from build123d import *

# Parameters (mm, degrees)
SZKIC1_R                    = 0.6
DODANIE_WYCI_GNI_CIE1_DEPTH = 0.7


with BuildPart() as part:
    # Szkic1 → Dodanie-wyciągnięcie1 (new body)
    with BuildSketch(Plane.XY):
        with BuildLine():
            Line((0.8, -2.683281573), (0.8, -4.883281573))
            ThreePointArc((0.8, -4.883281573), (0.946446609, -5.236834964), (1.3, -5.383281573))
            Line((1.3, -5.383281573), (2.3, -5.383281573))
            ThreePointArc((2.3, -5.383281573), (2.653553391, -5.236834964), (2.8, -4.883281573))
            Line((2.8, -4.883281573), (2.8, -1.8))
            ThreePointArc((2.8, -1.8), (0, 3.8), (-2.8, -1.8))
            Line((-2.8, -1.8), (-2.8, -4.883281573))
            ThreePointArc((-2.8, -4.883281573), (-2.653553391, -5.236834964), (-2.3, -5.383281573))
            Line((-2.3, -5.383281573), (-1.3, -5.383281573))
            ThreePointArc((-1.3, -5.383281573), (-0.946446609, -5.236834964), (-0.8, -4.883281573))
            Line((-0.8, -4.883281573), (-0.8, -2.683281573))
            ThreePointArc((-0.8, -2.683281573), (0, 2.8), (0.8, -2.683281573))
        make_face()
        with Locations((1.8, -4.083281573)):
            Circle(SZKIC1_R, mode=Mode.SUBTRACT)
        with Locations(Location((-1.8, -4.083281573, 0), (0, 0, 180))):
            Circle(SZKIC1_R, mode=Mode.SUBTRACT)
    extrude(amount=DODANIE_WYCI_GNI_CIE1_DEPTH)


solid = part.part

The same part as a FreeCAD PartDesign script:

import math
import FreeCAD as App
import Part
import Sketcher

V = App.Vector

doc = App.newDocument("Part")
body = doc.addObject("PartDesign::Body", "Body")

sketch1 = doc.addObject("Sketcher::SketchObject", "Sketch")
body.addObject(sketch1)
sketch1.AttachmentSupport = (doc.XY_Plane, [""])
sketch1.MapMode = "FlatFace"
sketch1.addGeometry([
    Part.LineSegment(V(0.8, -2.68, 0), V(0.8, -4.88, 0)),
    Part.ArcOfCircle(Part.Circle(V(1.3, -4.88, 0), V(0, 0, 1), 0.5), math.radians(180), math.radians(270)),
    Part.LineSegment(V(1.3, -5.38, 0), V(2.3, -5.38, 0)),
    Part.ArcOfCircle(Part.Circle(V(2.3, -4.88, 0), V(0, 0, 1), 0.5), math.radians(-90), math.radians(0)),
    Part.LineSegment(V(2.8, -4.88, 0), V(2.8, -1.8, 0)),
    Part.ArcOfCircle(Part.Circle(V(0, 0.3, 0), V(0, 0, 1), 3.5), math.radians(-37), math.radians(217)),
    Part.LineSegment(V(-2.8, -1.8, 0), V(-2.8, -4.88, 0)),
    Part.ArcOfCircle(Part.Circle(V(-2.3, -4.88, 0), V(0, 0, 1), 0.5), math.radians(180), math.radians(270)),
    Part.LineSegment(V(-2.3, -5.38, 0), V(-1.3, -5.38, 0)),
    Part.ArcOfCircle(Part.Circle(V(-1.3, -4.88, 0), V(0, 0, 1), 0.5), math.radians(-90), math.radians(0)),
    Part.LineSegment(V(-0.8, -4.88, 0), V(-0.8, -2.68, 0)),
    Part.ArcOfCircle(Part.Circle(V(0, 0, 0), V(0, 0, 1), 2.8), math.radians(-73), math.radians(253)),
    Part.Circle(V(-1.8, -4.08, 0), V(0, 0, 1), 0.6),
    Part.Circle(V(1.8, -4.08, 0), V(0, 0, 1), 0.6),
], False)
sketch1.addConstraint([
    Sketcher.Constraint("Tangent", 0, 2, 1, 1),
    Sketcher.Constraint("Tangent", 1, 2, 2, 1),
    Sketcher.Constraint("Tangent", 2, 2, 3, 1),
    Sketcher.Constraint("Tangent", 3, 2, 4, 1),
    Sketcher.Constraint("Coincident", 4, 2, 5, 1),
    Sketcher.Constraint("Coincident", 5, 2, 6, 1),
    Sketcher.Constraint("Tangent", 6, 2, 7, 1),
    Sketcher.Constraint("Tangent", 7, 2, 8, 1),
    Sketcher.Constraint("Tangent", 8, 2, 9, 1),
    Sketcher.Constraint("Tangent", 9, 2, 10, 1),
    Sketcher.Constraint("Coincident", 10, 2, 11, 2),
    Sketcher.Constraint("Coincident", 11, 1, 0, 1),
    Sketcher.Constraint("Vertical", 0),
    Sketcher.Constraint("Horizontal", 2),
    Sketcher.Constraint("Vertical", 4),
    Sketcher.Constraint("Vertical", 6),
    Sketcher.Constraint("Horizontal", 8),
    Sketcher.Constraint("Vertical", 10),
    Sketcher.Constraint("Coincident", 11, 3, -1, 1),
    Sketcher.Constraint("Equal", 1, 3),
    Sketcher.Constraint("Equal", 3, 7),
    Sketcher.Constraint("Equal", 7, 9),
    Sketcher.Constraint("Equal", 12, 13),
    Sketcher.Constraint("Symmetric", 3, 3, 7, 3, -2),
    Sketcher.Constraint("Symmetric", 12, 3, 13, 3, -2),
    Sketcher.Constraint("PointOnObject", 5, 3, -2),
    Sketcher.Constraint("Horizontal", 10, 2, 11, 1),
    Sketcher.Constraint("Diameter", 12, 1.2),
    Sketcher.Constraint("Radius", 1, 0.5),
    Sketcher.Constraint("Radius", 5, 3.5),
    Sketcher.Constraint("Radius", 11, 2.8),
    Sketcher.Constraint("DistanceX", 2, 1, 2, 2, 1.0),
    Sketcher.Constraint("DistanceY", 0, 2, 0, 1, 2.2),
    Sketcher.Constraint("DistanceX", 0, 2, 13, 3, 1.0),
    Sketcher.Constraint("DistanceX", -1, 1, 1, 3, 1.3),
    Sketcher.Constraint("DistanceY", -1, 1, 5, 3, 0.3),
    Sketcher.Constraint("DistanceY", 7, 3, 12, 3, 0.8),
])
pad1 = doc.addObject("PartDesign::Pad", "Pad")
body.addObject(pad1)
pad1.Profile = sketch1
pad1.Length = 0.7

doc.recompute()
